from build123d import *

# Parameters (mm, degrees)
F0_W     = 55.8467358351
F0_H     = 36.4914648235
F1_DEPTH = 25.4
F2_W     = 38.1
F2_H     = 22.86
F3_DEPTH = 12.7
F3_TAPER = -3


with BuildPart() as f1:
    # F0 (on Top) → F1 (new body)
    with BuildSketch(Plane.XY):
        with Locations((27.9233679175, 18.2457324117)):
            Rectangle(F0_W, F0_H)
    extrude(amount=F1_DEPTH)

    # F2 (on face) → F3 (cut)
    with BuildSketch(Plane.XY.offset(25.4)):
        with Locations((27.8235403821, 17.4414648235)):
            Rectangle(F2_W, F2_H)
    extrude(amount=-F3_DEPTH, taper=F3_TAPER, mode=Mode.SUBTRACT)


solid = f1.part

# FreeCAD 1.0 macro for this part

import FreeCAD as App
import Part
import Sketcher
from FreeCAD import Vector
Q = App.Units.Quantity

doc = App.newDocument("Part")
params = doc.addObject("Spreadsheet::Sheet", "Params")
for row, (alias, value) in enumerate([
    ("pad1_length", "1 in"),
    ("sketch2_width", "1.5 in"),
    ("sketch2_height", "0.9 in"),
    ("pocket1_length", "0.5 in"),
    ("pocket1_taper", "3 deg"),
], start=1):
    params.set(f"A{row}", alias)
    params.set(f"B{row}", "=" + value)
    params.setAlias(f"B{row}", alias)

body = doc.addObject("PartDesign::Body", "Body")

sketch1 = doc.addObject("Sketcher::SketchObject", "Sketch")
body.addObject(sketch1)
sketch1.AttachmentSupport = (doc.XY_Plane, [""])
sketch1.MapMode = "FlatFace"
sketch1.addGeometry([
    Part.LineSegment(Vector(0, 36, 0), Vector(0, 0, 0)),
    Part.LineSegment(Vector(0, 0, 0), Vector(56, 0, 0)),
    Part.LineSegment(Vector(56, 0, 0), Vector(56, 36, 0)),
    Part.LineSegment(Vector(56, 36, 0), Vector(0, 36, 0)),
], False)
sketch1.addConstraint([
    Sketcher.Constraint("Coincident", 0, 2, 1, 1),
    Sketcher.Constraint("Coincident", 1, 2, 2, 1),
    Sketcher.Constraint("Coincident", 2, 2, 3, 1),
    Sketcher.Constraint("Coincident", 3, 2, 0, 1),
    Sketcher.Constraint("Vertical", 0),
    Sketcher.Constraint("Horizontal", 1),
    Sketcher.Constraint("Vertical", 2),
    Sketcher.Constraint("Horizontal", 3),
    Sketcher.Constraint("Coincident", 0, 2, -1, 1),
    Sketcher.Constraint("DistanceX", 1, 1, 1, 2, Q("55.846736 mm")),
    Sketcher.Constraint("DistanceY", 0, 2, 0, 1, Q("36.491465 mm")),
])
pad1 = doc.addObject("PartDesign::Pad", "Pad")
body.addObject(pad1)
pad1.Profile = sketch1
pad1.setExpression("Length", "Params.pad1_length")

sketch2 = doc.addObject("Sketcher::SketchObject", "Sketch001")
body.addObject(sketch2)
sketch2.AttachmentSupport = (doc.XY_Plane, [""])
sketch2.MapMode = "FlatFace"
sketch2.AttachmentOffset = App.Placement(Vector(0, 0, 1 * 25.4), App.Rotation())
sketch2.addGeometry([
    Part.LineSegment(Vector(9, 29, 0), Vector(9, 6, 0)),
    Part.LineSegment(Vector(9, 6, 0), Vector(47, 6, 0)),
    Part.LineSegment(Vector(47, 6, 0), Vector(47, 29, 0)),
    Part.LineSegment(Vector(47, 29, 0), Vector(9, 29, 0)),
], False)
sketch2.addConstraint([
    Sketcher.Constraint("Coincident", 0, 2, 1, 1),
    Sketcher.Constraint("Coincident", 1, 2, 2, 1),
    Sketcher.Constraint("Coincident", 2, 2, 3, 1),
    Sketcher.Constraint("Coincident", 3, 2, 0, 1),
    Sketcher.Constraint("Vertical", 0),
    Sketcher.Constraint("Horizontal", 1),
    Sketcher.Constraint("Vertical", 2),
    Sketcher.Constraint("Horizontal", 3),
    Sketcher.Constraint("DistanceX", 1, 1, 1, 2, Q("1.5 in")),
    Sketcher.Constraint("DistanceY", 0, 2, 0, 1, Q("0.9 in")),
    Sketcher.Constraint("DistanceX", -1, 1, 0, 2, Q("8.77354 mm")),
    Sketcher.Constraint("DistanceY", -1, 1, 0, 2, Q("6.011465 mm")),
])
sketch2.setExpression("Constraints[8]", "Params.sketch2_width")
sketch2.setExpression("Constraints[9]", "Params.sketch2_height")
pocket1 = doc.addObject("PartDesign::Pocket", "Pocket")
body.addObject(pocket1)
pocket1.Profile = sketch2
pocket1.setExpression("Length", "Params.pocket1_length")
pocket1.setExpression("TaperAngle", "Params.pocket1_taper")

doc.recompute()
